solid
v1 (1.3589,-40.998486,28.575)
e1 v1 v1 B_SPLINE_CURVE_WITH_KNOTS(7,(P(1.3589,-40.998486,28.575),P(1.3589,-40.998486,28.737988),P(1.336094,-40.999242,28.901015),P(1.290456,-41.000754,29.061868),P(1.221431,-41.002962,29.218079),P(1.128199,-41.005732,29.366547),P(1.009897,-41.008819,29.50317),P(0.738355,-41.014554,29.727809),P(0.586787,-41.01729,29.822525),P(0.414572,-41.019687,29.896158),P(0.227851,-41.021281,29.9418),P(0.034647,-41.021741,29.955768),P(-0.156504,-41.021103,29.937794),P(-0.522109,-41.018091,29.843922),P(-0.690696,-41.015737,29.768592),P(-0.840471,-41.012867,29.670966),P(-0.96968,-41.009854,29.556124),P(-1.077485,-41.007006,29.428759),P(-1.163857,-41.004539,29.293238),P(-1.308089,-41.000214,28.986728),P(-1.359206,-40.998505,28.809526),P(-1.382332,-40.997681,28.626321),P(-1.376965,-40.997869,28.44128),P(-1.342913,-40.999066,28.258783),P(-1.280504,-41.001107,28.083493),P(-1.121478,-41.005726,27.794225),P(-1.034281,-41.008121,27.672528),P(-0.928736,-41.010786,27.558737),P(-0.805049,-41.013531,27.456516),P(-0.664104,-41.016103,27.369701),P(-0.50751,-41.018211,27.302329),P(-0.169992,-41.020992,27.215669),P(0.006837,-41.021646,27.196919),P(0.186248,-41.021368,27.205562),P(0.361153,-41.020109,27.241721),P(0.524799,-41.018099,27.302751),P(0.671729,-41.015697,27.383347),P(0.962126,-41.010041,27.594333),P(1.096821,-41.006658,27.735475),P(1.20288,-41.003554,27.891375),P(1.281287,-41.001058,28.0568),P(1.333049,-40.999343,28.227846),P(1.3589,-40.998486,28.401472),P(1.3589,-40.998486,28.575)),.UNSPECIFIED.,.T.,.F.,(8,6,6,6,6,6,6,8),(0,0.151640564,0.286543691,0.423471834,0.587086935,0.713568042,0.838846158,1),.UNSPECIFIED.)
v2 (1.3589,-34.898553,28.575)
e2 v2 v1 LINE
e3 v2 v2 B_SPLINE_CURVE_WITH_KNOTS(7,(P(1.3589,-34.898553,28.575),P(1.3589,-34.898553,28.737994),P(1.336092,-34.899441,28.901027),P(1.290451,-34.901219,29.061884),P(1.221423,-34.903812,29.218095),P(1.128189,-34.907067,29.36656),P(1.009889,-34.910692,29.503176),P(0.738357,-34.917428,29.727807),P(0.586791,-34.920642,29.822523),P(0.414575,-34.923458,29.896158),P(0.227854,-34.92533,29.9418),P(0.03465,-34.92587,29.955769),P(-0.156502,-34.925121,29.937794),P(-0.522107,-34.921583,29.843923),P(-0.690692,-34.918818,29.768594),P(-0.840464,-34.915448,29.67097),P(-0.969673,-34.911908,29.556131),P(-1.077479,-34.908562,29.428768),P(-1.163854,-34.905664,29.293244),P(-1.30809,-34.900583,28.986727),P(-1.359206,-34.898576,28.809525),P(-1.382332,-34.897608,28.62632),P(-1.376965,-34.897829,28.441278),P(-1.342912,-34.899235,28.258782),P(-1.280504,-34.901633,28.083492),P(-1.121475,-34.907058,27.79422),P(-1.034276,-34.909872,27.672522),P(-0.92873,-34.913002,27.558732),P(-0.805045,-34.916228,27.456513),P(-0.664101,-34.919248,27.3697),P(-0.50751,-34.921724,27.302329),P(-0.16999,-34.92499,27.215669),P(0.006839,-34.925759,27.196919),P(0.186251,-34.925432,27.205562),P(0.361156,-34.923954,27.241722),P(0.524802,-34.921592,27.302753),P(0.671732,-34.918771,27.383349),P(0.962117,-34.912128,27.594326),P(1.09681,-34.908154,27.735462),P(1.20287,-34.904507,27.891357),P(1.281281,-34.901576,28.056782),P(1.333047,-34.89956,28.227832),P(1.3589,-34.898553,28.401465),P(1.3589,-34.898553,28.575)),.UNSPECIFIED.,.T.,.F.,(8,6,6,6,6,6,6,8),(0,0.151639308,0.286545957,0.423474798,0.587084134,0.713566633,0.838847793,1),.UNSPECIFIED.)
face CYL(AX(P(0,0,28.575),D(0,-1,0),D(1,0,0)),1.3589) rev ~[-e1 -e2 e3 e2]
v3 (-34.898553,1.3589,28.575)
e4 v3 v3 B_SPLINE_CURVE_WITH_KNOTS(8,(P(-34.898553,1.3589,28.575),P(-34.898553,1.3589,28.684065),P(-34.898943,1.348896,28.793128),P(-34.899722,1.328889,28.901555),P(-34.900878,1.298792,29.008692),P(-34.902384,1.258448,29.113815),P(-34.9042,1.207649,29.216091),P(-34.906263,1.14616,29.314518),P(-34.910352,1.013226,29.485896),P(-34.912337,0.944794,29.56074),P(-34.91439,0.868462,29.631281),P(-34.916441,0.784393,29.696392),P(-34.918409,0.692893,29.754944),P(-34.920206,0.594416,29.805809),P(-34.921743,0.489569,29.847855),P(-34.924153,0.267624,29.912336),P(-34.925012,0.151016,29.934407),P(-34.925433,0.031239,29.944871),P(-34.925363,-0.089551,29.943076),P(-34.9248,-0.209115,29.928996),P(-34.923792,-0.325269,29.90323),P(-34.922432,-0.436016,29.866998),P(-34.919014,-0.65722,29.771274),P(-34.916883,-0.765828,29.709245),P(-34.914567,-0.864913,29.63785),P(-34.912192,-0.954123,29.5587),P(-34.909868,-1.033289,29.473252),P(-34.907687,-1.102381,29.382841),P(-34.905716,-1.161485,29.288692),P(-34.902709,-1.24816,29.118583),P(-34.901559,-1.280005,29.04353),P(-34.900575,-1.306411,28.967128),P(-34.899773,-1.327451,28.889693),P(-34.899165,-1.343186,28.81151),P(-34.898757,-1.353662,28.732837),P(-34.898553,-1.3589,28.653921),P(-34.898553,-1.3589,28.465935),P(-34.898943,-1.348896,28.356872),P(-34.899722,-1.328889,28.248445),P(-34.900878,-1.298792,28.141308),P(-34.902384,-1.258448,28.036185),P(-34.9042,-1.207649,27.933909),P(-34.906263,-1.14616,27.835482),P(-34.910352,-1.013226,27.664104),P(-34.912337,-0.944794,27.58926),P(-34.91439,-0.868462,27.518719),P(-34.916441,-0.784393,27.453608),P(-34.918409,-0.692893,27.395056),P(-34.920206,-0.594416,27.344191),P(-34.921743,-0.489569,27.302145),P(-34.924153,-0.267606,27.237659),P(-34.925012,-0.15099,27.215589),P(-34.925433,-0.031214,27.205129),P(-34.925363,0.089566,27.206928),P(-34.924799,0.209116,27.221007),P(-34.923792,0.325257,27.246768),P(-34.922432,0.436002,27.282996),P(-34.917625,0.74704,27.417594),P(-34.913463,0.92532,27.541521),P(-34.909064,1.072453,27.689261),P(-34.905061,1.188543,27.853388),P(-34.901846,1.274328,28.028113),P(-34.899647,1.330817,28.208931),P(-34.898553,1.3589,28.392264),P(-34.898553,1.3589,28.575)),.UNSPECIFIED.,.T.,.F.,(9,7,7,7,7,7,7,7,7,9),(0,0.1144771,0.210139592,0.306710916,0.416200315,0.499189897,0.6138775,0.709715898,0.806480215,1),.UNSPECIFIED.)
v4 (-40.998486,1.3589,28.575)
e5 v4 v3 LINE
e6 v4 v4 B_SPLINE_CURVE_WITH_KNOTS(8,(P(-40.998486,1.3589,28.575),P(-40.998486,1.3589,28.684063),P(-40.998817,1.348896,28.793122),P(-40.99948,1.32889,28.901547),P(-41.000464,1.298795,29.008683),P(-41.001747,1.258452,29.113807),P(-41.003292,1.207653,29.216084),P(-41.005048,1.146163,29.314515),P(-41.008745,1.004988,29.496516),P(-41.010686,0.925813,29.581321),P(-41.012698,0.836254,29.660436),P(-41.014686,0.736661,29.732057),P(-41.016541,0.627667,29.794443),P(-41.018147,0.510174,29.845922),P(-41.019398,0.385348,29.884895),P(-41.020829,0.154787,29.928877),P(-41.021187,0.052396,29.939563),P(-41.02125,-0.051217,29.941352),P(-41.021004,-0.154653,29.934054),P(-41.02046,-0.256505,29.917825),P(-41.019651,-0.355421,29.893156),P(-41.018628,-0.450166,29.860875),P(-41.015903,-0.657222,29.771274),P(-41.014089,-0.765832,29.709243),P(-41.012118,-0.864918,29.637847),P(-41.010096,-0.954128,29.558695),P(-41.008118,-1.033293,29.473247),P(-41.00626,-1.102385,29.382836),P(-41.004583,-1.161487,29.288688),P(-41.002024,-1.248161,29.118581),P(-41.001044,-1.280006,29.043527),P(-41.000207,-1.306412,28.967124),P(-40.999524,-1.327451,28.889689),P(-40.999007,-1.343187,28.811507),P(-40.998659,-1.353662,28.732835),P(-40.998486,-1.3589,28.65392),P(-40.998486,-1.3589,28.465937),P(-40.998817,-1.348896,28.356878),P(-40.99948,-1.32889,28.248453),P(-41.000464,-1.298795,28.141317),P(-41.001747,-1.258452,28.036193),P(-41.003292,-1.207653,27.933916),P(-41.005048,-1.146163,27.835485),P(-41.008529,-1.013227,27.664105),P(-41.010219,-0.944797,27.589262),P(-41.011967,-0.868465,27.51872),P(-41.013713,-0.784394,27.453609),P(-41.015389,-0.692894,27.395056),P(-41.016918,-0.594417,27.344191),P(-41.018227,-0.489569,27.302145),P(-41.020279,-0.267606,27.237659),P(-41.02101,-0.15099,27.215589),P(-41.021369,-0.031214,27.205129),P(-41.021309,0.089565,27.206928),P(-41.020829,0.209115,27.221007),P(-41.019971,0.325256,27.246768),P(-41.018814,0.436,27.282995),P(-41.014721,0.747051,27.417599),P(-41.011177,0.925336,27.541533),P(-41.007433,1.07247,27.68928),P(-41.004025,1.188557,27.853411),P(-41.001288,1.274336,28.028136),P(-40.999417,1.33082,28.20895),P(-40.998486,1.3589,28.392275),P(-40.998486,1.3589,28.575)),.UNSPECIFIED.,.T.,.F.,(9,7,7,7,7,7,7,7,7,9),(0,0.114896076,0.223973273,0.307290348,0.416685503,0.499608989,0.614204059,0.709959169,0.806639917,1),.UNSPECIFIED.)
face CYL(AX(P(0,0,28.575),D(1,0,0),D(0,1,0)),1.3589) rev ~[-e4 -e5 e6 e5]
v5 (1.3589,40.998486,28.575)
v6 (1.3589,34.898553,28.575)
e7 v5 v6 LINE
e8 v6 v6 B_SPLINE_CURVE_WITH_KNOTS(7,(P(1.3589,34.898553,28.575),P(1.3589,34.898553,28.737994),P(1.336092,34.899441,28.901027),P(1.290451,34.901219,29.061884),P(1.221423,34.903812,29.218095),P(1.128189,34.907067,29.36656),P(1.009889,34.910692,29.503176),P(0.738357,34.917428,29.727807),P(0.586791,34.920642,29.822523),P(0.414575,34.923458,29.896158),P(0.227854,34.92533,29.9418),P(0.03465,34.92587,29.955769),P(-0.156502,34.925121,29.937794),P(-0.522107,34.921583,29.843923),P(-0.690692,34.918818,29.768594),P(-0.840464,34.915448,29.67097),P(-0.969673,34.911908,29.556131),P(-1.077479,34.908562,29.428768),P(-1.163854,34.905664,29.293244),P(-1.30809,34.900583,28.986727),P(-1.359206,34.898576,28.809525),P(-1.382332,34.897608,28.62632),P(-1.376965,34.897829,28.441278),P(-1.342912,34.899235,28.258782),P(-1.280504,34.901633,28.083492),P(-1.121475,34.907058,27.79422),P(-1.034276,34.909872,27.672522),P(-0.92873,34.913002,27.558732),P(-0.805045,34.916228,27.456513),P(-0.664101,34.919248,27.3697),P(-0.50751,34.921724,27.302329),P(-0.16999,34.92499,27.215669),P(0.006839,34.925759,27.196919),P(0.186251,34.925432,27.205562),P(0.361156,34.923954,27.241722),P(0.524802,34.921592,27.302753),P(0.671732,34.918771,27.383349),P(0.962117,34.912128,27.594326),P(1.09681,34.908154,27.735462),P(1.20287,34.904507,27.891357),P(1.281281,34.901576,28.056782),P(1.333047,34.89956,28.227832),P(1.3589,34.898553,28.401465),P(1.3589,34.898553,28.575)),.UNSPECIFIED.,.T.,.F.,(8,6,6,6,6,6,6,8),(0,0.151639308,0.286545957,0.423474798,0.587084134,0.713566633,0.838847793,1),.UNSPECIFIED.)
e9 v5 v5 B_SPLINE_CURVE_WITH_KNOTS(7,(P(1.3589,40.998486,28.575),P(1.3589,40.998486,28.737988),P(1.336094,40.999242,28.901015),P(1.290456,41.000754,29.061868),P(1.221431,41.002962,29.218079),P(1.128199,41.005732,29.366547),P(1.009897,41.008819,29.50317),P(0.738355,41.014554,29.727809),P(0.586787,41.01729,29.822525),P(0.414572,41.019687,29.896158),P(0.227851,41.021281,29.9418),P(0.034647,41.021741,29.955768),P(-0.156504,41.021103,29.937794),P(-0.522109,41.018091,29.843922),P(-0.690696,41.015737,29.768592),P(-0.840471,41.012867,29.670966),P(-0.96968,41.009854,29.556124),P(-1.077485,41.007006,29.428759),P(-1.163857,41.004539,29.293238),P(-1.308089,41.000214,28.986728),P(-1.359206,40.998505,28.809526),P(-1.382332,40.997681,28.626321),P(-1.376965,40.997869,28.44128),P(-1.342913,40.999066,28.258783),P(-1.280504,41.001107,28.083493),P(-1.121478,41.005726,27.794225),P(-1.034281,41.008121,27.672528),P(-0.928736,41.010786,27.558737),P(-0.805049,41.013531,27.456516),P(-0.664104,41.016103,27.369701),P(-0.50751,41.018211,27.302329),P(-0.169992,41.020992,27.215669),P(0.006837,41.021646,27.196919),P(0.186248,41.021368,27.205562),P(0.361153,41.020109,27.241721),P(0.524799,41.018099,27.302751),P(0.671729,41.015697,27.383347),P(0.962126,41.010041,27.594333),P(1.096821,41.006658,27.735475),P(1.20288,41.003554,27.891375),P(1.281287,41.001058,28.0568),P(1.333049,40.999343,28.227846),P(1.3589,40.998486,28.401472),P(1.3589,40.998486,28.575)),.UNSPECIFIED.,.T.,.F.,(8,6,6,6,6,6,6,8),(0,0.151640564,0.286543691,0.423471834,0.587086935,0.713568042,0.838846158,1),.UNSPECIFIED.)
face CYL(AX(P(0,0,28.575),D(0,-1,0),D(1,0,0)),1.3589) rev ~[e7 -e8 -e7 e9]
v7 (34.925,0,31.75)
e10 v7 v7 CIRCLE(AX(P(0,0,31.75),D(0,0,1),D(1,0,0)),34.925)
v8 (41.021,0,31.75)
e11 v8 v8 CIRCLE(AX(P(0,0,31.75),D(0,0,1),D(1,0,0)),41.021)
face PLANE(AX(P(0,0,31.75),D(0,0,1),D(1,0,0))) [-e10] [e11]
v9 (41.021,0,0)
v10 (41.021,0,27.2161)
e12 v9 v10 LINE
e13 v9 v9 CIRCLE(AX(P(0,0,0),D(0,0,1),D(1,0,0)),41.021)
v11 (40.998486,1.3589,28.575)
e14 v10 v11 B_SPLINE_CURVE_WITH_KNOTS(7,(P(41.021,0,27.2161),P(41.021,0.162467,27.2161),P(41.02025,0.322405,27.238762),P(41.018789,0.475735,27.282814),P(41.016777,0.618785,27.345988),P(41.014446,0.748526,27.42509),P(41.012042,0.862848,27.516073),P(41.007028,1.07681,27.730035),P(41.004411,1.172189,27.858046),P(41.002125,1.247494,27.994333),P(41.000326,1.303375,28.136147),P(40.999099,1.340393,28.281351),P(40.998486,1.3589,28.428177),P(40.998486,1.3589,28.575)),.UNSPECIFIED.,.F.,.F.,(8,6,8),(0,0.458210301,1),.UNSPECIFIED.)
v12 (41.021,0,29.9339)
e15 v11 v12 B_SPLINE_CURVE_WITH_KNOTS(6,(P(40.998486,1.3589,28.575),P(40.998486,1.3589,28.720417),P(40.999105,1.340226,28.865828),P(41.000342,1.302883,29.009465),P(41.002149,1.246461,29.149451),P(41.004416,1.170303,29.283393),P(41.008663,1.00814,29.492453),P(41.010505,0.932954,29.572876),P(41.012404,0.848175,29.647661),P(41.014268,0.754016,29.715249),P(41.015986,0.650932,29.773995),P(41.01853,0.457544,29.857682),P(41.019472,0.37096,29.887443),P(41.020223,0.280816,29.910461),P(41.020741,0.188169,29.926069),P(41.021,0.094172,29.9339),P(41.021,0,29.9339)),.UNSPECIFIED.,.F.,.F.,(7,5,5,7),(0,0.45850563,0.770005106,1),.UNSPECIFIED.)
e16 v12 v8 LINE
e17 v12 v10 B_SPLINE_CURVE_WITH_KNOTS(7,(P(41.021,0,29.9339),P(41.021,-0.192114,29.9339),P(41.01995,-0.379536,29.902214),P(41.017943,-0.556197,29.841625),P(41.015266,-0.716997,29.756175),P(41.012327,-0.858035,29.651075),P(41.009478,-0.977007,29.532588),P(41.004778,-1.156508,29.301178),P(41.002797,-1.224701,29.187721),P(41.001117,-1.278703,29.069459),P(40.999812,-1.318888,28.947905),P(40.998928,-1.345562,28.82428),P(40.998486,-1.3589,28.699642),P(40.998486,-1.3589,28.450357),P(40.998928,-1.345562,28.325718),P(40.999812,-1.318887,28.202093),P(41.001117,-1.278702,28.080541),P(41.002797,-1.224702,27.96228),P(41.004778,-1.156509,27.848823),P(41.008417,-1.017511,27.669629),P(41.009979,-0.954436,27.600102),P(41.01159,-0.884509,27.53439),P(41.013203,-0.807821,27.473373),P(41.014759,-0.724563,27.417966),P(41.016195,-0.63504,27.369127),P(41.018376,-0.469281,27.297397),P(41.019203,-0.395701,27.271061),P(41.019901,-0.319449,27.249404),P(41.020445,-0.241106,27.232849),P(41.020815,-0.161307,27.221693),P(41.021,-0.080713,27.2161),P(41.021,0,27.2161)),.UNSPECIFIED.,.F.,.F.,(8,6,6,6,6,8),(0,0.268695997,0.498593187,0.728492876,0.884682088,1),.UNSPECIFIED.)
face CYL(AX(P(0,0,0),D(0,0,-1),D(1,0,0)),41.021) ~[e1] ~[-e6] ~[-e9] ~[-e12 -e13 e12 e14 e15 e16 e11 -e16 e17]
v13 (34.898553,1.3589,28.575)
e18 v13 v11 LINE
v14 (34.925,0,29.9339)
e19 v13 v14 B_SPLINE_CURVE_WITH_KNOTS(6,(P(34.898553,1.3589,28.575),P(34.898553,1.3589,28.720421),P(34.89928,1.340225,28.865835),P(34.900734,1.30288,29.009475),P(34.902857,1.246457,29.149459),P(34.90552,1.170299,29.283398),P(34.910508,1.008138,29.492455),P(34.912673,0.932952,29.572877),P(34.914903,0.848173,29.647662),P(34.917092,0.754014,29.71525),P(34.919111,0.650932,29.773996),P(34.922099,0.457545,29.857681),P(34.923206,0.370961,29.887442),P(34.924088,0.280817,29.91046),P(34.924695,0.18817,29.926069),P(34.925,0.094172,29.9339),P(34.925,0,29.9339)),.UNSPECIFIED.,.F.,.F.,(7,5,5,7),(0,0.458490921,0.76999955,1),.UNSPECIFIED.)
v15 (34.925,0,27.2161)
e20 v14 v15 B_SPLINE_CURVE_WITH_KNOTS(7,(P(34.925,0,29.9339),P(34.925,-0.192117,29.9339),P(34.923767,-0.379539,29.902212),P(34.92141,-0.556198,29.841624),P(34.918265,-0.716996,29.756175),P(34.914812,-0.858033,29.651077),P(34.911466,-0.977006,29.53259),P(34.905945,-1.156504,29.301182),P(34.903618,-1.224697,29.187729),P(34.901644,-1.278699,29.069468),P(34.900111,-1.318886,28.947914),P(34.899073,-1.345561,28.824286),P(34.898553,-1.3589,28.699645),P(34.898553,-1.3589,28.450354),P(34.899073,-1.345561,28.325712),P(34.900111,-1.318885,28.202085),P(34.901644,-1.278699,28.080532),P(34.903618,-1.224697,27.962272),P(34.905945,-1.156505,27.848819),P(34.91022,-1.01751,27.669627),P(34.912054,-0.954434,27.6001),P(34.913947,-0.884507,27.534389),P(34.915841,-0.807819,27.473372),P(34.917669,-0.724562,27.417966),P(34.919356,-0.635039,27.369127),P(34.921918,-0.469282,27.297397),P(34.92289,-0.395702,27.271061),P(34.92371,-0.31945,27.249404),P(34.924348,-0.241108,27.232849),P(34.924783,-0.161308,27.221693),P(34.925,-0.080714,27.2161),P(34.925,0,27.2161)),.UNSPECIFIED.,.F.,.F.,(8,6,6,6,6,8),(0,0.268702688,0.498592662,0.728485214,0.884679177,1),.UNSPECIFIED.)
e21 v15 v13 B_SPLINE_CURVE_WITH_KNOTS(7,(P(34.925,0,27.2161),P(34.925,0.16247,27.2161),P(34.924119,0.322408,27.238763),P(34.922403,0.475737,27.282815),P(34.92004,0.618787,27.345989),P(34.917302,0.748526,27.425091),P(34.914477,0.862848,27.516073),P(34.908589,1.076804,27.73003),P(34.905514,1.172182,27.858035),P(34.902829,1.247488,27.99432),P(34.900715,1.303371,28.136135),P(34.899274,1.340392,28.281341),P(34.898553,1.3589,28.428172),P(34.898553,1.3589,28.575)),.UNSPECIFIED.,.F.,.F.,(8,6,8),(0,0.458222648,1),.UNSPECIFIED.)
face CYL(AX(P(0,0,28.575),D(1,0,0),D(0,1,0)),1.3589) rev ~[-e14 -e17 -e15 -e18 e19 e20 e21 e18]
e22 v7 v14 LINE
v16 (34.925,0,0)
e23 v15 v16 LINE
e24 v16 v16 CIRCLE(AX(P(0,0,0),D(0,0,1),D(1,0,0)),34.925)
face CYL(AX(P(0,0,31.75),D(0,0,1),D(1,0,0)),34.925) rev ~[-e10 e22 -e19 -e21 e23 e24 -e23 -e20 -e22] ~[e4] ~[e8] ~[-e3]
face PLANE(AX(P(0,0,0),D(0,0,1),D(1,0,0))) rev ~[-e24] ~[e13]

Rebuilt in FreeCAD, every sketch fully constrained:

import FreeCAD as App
import Part
import Sketcher
Q = App.Units.Quantity

doc = App.newDocument("Part")
body = doc.addObject("PartDesign::Body", "Body")

# Sketch on XY plane
sketch1 = body.newObject("Sketcher::SketchObject", "Sketch")
sketch1.AttachmentSupport = (doc.getObject("XY_Plane"), [""])
sketch1.MapMode = "FlatFace"
sketch1.addGeometry(Part.Circle(App.Vector(0, 0, 0), App.Vector(0, 0, 1), 41), False)
sketch1.addConstraint([
    Sketcher.Constraint("Coincident", 0, 3, -1, 1),
    Sketcher.Constraint("Diameter", 0, Q("3.23 in")),
])
pad1 = body.newObject("PartDesign::Pad", "Pad")
pad1.Profile = sketch1
pad1.Length = Q("1.25 in")

# Sketch on XY plane
sketch2 = body.newObject("Sketcher::SketchObject", "Sketch001")
sketch2.AttachmentSupport = (doc.getObject("XY_Plane"), [""])
sketch2.MapMode = "FlatFace"
sketch2.AttachmentOffset = App.Placement(App.Vector(0, 0, 1.25 * 25.4), App.Rotation())
sketch2.addGeometry(Part.Circle(App.Vector(0, 0, 0), App.Vector(0, 0, 1), 35), False)
sketch2.addConstraint([
    Sketcher.Constraint("Coincident", 0, 3, -1, 1),
    Sketcher.Constraint("Diameter", 0, Q("2.75 in")),
])
pocket1 = body.newObject("PartDesign::Pocket", "Pocket")
pocket1.Profile = sketch2
pocket1.Type = "ThroughAll"

# Sketch on XZ plane
sketch3 = body.newObject("Sketcher::SketchObject", "Sketch002")
sketch3.AttachmentSupport = (doc.getObject("XZ_Plane"), [""])
sketch3.MapMode = "FlatFace"
sketch3.addGeometry(Part.Circle(App.Vector(0, 28.6, 0), App.Vector(0, 0, 1), 1.4), False)
sketch3.addConstraint([
    Sketcher.Constraint("PointOnObject", 0, 3, -2),
    Sketcher.Constraint("Diameter", 0, Q("0.107 in")),
    Sketcher.Constraint("DistanceY", -1, 1, 0, 3, Q("1.125 in")),
])
pocket2 = body.newObject("PartDesign::Pocket", "Pocket001")
pocket2.Profile = sketch3
pocket2.Length = Q("3.5 in")
pocket2.Midplane = True

# Sketch on YZ plane
sketch4 = body.newObject("Sketcher::SketchObject", "Sketch003")
sketch4.AttachmentSupport = (doc.getObject("YZ_Plane"), [""])
sketch4.MapMode = "FlatFace"
sketch4.addGeometry(Part.Circle(App.Vector(0, 28.6, 0), App.Vector(0, 0, 1), 1.4), False)
sketch4.addConstraint([
    Sketcher.Constraint("PointOnObject", 0, 3, -2),
    Sketcher.Constraint("Diameter", 0, Q("0.107 in")),
    Sketcher.Constraint("DistanceY", -1, 1, 0, 3, Q("1.125 in")),
])
pocket3 = body.newObject("PartDesign::Pocket", "Pocket002")
pocket3.Profile = sketch4
pocket3.Length = Q("3.5 in")
pocket3.Midplane = True

doc.recompute()
